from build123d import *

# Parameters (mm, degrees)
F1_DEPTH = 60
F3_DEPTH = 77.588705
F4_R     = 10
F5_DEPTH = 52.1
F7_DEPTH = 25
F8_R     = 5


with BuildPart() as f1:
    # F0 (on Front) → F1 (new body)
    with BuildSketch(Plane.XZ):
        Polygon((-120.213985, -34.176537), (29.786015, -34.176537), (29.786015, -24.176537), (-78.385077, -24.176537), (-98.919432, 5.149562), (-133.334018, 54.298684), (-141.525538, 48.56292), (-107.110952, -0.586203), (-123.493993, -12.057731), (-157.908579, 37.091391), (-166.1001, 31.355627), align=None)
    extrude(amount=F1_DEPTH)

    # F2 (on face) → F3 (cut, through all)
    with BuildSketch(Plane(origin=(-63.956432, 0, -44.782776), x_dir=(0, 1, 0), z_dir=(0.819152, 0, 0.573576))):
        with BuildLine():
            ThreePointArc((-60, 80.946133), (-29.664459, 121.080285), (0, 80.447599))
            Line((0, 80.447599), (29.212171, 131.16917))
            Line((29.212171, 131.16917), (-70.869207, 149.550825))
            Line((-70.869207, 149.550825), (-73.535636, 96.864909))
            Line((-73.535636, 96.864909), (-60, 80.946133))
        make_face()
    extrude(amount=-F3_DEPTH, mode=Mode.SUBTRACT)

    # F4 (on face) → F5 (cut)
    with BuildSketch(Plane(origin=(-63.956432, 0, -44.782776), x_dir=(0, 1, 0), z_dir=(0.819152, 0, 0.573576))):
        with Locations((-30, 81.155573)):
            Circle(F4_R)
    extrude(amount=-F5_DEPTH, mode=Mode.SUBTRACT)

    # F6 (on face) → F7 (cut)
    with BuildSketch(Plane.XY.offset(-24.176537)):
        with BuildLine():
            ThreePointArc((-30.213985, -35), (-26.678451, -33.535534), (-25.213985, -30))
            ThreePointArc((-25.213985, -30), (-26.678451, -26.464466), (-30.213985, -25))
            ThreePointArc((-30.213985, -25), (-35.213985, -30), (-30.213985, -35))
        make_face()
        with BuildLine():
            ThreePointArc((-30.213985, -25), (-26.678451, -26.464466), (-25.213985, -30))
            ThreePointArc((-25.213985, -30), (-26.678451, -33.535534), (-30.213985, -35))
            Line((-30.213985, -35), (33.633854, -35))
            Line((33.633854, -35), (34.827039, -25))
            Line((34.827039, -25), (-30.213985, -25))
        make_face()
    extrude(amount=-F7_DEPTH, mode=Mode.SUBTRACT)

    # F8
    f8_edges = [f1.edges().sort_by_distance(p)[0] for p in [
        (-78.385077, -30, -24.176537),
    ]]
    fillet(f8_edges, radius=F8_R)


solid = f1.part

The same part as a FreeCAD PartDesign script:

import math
import FreeCAD as App
import Part
import Sketcher
Q = App.Units.Quantity


def edges_at(feature, points):
    """Names of the edges that pass closest to the given points."""
    edges = feature.Shape.Edges
    near = lambda p: min(range(len(edges)), key=lambda i: edges[i].distToShape(Part.Vertex(*p))[0])
    return sorted({f"Edge{near(p) + 1}" for p in points})

doc = App.newDocument("Part")
params = doc.addObject("Spreadsheet::Sheet", "Params")
for row, (alias, value) in enumerate([
    ("sketch1_width", "150 mm"),
    ("sketch1_height", "10 mm"),
    ("sketch1_length", "59.999999 mm"),
    ("sketch1_length2", "9.999999 mm"),
    ("sketch1_length3", "20 mm"),
    ("pad1_length", "60 mm"),
    ("sketch3_diameter", "20 mm"),
    ("pocket2_length", "52.1 mm"),
    ("sketch4_radius", "5 mm"),
    ("pocket3_length", "25 mm"),
    ("fillet_radius", "5 mm"),
], start=1):
    params.set(f"A{row}", alias)
    params.set(f"B{row}", "=" + value)
    params.setAlias(f"B{row}", alias)

body = doc.addObject("PartDesign::Body", "Body")

sketch1 = body.newObject("Sketcher::SketchObject", "Sketch")
sketch1.AttachmentSupport = (doc.getObject("XZ_Plane"), [""])
sketch1.MapMode = "FlatFace"
sketch1.addGeometry([
    Part.LineSegment(App.Vector(-120, -34, 0), App.Vector(30, -34, 0)),
    Part.LineSegment(App.Vector(30, -34, 0), App.Vector(30, -24, 0)),
    Part.LineSegment(App.Vector(30, -24, 0), App.Vector(-78, -24, 0)),
    Part.LineSegment(App.Vector(-78, -24, 0), App.Vector(-99, 5, 0)),
    Part.LineSegment(App.Vector(-99, 5, 0), App.Vector(-133, 54, 0)),
    Part.LineSegment(App.Vector(-133, 54, 0), App.Vector(-142, 49, 0)),
    Part.LineSegment(App.Vector(-142, 49, 0), App.Vector(-107, -1, 0)),
    Part.LineSegment(App.Vector(-107, -1, 0), App.Vector(-123, -12, 0)),
    Part.LineSegment(App.Vector(-123, -12, 0), App.Vector(-158, 37, 0)),
    Part.LineSegment(App.Vector(-158, 37, 0), App.Vector(-166, 31, 0)),
    Part.LineSegment(App.Vector(-166, 31, 0), App.Vector(-120, -34, 0)),
], False)
sketch1.addConstraint([
    Sketcher.Constraint("Coincident", 0, 2, 1, 1),
    Sketcher.Constraint("Coincident", 1, 2, 2, 1),
    Sketcher.Constraint("Coincident", 2, 2, 3, 1),
    Sketcher.Constraint("Coincident", 3, 2, 4, 1),
    Sketcher.Constraint("Coincident", 4, 2, 5, 1),
    Sketcher.Constraint("Coincident", 5, 2, 6, 1),
    Sketcher.Constraint("Coincident", 6, 2, 7, 1),
    Sketcher.Constraint("Coincident", 7, 2, 8, 1),
    Sketcher.Constraint("Coincident", 8, 2, 9, 1),
    Sketcher.Constraint("Coincident", 9, 2, 10, 1),
    Sketcher.Constraint("Coincident", 10, 2, 0, 1),
    Sketcher.Constraint("Horizontal", 0),
    Sketcher.Constraint("Vertical", 1),
    Sketcher.Constraint("Horizontal", 2),
    Sketcher.Constraint("Parallel", 3, 4),
    Sketcher.Constraint("Perpendicular", 4, 5),
    Sketcher.Constraint("Perpendicular", 5, 6),
    Sketcher.Constraint("Perpendicular", 6, 7),
    Sketcher.Constraint("Perpendicular", 7, 8),
    Sketcher.Constraint("Perpendicular", 8, 9),
    Sketcher.Constraint("Perpendicular", 9, 10),
    Sketcher.Constraint("Equal", 4, 6),
    Sketcher.Constraint("Equal", 6, 8),
    Sketcher.Constraint("Equal", 5, 9),
    Sketcher.Constraint("DistanceX", 0, 1, 0, 2, Q("150 mm")),
    Sketcher.Constraint("DistanceY", 1, 1, 1, 2, Q("10 mm")),
    Sketcher.Constraint("Angle", 3, Q("124.999999 deg")),
    Sketcher.Constraint("Distance", 4, Q("59.999999 mm")),
    Sketcher.Constraint("Distance", 5, Q("9.999999 mm")),
    Sketcher.Constraint("Distance", 7, Q("20 mm")),
    Sketcher.Constraint("Distance", 10, Q("80 mm")),
    Sketcher.Constraint("DistanceX", 9, 2, -1, 1, Q("166.1001 mm")),
    Sketcher.Constraint("DistanceY", -1, 1, 5, 2, Q("48.56292 mm")),
])
sketch1.setExpression("Constraints[24]", "Params.sketch1_width")
sketch1.setExpression("Constraints[25]", "Params.sketch1_height")
sketch1.setExpression("Constraints[27]", "Params.sketch1_length")
sketch1.setExpression("Constraints[28]", "Params.sketch1_length2")
sketch1.setExpression("Constraints[29]", "Params.sketch1_length3")
pad1 = body.newObject("PartDesign::Pad", "Pad")
pad1.Profile = sketch1
pad1.setExpression("Length", "Params.pad1_length")

sketch2 = body.newObject("Sketcher::SketchObject", "Sketch001")
sketch2.Placement = App.Placement(App.Vector(-63.956432, 0, -44.782776), App.Rotation(App.Vector(0, 1, 0), App.Vector(-0.573576164, 0, 0.819152235), App.Vector(0.819152235, 0, 0.573576164), "ZXY"))
sketch2.addGeometry([
    Part.ArcOfCircle(Part.Circle(App.Vector(-30, 90, 0), App.Vector(0, 0, 1), 31), math.radians(-17), math.radians(196)),
    Part.LineSegment(App.Vector(0, 80, 0), App.Vector(29, 131, 0)),
    Part.LineSegment(App.Vector(29, 131, 0), App.Vector(-71, 150, 0)),
    Part.LineSegment(App.Vector(-71, 150, 0), App.Vector(-74, 97, 0)),
    Part.LineSegment(App.Vector(-74, 97, 0), App.Vector(-60, 81, 0)),
], False)
sketch2.addConstraint([
    Sketcher.Constraint("Coincident", 0, 1, 1, 1),
    Sketcher.Constraint("Coincident", 1, 2, 2, 1),
    Sketcher.Constraint("Coincident", 2, 2, 3, 1),
    Sketcher.Constraint("Coincident", 3, 2, 4, 1),
    Sketcher.Constraint("Coincident", 4, 2, 0, 2),
    Sketcher.Constraint("PointOnObject", 0, 1, -2),
    Sketcher.Constraint("DistanceX", 4, 2, -1, 1, Q("60 mm")),
    Sketcher.Constraint("Radius", 0, Q("31.335978 mm")),
    Sketcher.Constraint("DistanceY", -1, 1, 0, 1, Q("80.447599 mm")),
    Sketcher.Constraint("Distance", 2, Q("101.75543 mm")),
    Sketcher.Constraint("DistanceY", -1, 1, 0, 3, Q("89.745388 mm")),
    Sketcher.Constraint("DistanceX", -1, 1, 1, 2, Q("29.212171 mm")),
    Sketcher.Constraint("DistanceY", -1, 1, 1, 2, Q("131.16917 mm")),
    Sketcher.Constraint("DistanceY", -1, 1, 3, 2, Q("96.864909 mm")),
    Sketcher.Constraint("DistanceX", 2, 2, 0, 3, Q("40.94439 mm")),
    Sketcher.Constraint("DistanceX", 3, 2, 0, 3, Q("43.610819 mm")),
])
pocket1 = body.newObject("PartDesign::Pocket", "Pocket")
pocket1.Profile = sketch2
pocket1.Type = "ThroughAll"

sketch3 = body.newObject("Sketcher::SketchObject", "Sketch002")
sketch3.Placement = App.Placement(App.Vector(-63.956432, 0, -44.782776), App.Rotation(App.Vector(0, 1, 0), App.Vector(-0.573576164, 0, 0.819152235), App.Vector(0.819152235, 0, 0.573576164), "ZXY"))
sketch3.addGeometry(Part.Circle(App.Vector(-30, 81, 0), App.Vector(0, 0, 1), 10), False)
sketch3.addConstraint([
    Sketcher.Constraint("Diameter", 0, Q("20 mm")),
    Sketcher.Constraint("DistanceX", 0, 3, -1, 1, Q("30 mm")),
    Sketcher.Constraint("DistanceY", -1, 1, 0, 3, Q("81.155573 mm")),
])
sketch3.setExpression("Constraints[0]", "Params.sketch3_diameter")
pocket2 = body.newObject("PartDesign::Pocket", "Pocket001")
pocket2.Profile = sketch3
pocket2.setExpression("Length", "Params.pocket2_length")

sketch4 = body.newObject("Sketcher::SketchObject", "Sketch003")
sketch4.AttachmentSupport = (doc.getObject("XY_Plane"), [""])
sketch4.MapMode = "FlatFace"
sketch4.AttachmentOffset = App.Placement(App.Vector(0, 0, -24.176537), App.Rotation())
sketch4.addGeometry([
    Part.ArcOfCircle(Part.Circle(App.Vector(-30, -30, 0), App.Vector(0, 0, 1), 5), math.radians(90), math.radians(270)),
    Part.LineSegment(App.Vector(-30, -35, 0), App.Vector(34, -35, 0)),
    Part.LineSegment(App.Vector(34, -35, 0), App.Vector(35, -25, 0)),
    Part.LineSegment(App.Vector(35, -25, 0), App.Vector(-30, -25, 0)),
], False)
sketch4.addConstraint([
    Sketcher.Constraint("Tangent", 0, 2, 1, 1),
    Sketcher.Constraint("Coincident", 1, 2, 2, 1),
    Sketcher.Constraint("Coincident", 2, 2, 3, 1),
    Sketcher.Constraint("Tangent", 3, 2, 0, 1),
    Sketcher.Constraint("Horizontal", 1),
    Sketcher.Constraint("Horizontal", 3),
    Sketcher.Constraint("Radius", 0, Q("5 mm")),
    Sketcher.Constraint("DistanceY", 0, 3, -1, 1, Q("30 mm")),
    Sketcher.Constraint("DistanceX", 1, 1, 1, 2, Q("63.847839 mm")),
    Sketcher.Constraint("DistanceX", 3, 2, 3, 1, Q("65.041024 mm")),
    Sketcher.Constraint("DistanceX", -1, 1, 2, 2, Q("34.827039 mm")),
])
sketch4.setExpression("Constraints[6]", "Params.sketch4_radius")
pocket3 = body.newObject("PartDesign::Pocket", "Pocket002")
pocket3.Profile = sketch4
pocket3.setExpression("Length", "Params.pocket3_length")
doc.recompute()

fillet = body.newObject("PartDesign::Fillet", "Fillet")
fillet.Base = (pocket3, edges_at(pocket3, [(-78.385, -30, -24.177)]))
fillet.setExpression("Radius", "Params.fillet_radius")

doc.recompute()
